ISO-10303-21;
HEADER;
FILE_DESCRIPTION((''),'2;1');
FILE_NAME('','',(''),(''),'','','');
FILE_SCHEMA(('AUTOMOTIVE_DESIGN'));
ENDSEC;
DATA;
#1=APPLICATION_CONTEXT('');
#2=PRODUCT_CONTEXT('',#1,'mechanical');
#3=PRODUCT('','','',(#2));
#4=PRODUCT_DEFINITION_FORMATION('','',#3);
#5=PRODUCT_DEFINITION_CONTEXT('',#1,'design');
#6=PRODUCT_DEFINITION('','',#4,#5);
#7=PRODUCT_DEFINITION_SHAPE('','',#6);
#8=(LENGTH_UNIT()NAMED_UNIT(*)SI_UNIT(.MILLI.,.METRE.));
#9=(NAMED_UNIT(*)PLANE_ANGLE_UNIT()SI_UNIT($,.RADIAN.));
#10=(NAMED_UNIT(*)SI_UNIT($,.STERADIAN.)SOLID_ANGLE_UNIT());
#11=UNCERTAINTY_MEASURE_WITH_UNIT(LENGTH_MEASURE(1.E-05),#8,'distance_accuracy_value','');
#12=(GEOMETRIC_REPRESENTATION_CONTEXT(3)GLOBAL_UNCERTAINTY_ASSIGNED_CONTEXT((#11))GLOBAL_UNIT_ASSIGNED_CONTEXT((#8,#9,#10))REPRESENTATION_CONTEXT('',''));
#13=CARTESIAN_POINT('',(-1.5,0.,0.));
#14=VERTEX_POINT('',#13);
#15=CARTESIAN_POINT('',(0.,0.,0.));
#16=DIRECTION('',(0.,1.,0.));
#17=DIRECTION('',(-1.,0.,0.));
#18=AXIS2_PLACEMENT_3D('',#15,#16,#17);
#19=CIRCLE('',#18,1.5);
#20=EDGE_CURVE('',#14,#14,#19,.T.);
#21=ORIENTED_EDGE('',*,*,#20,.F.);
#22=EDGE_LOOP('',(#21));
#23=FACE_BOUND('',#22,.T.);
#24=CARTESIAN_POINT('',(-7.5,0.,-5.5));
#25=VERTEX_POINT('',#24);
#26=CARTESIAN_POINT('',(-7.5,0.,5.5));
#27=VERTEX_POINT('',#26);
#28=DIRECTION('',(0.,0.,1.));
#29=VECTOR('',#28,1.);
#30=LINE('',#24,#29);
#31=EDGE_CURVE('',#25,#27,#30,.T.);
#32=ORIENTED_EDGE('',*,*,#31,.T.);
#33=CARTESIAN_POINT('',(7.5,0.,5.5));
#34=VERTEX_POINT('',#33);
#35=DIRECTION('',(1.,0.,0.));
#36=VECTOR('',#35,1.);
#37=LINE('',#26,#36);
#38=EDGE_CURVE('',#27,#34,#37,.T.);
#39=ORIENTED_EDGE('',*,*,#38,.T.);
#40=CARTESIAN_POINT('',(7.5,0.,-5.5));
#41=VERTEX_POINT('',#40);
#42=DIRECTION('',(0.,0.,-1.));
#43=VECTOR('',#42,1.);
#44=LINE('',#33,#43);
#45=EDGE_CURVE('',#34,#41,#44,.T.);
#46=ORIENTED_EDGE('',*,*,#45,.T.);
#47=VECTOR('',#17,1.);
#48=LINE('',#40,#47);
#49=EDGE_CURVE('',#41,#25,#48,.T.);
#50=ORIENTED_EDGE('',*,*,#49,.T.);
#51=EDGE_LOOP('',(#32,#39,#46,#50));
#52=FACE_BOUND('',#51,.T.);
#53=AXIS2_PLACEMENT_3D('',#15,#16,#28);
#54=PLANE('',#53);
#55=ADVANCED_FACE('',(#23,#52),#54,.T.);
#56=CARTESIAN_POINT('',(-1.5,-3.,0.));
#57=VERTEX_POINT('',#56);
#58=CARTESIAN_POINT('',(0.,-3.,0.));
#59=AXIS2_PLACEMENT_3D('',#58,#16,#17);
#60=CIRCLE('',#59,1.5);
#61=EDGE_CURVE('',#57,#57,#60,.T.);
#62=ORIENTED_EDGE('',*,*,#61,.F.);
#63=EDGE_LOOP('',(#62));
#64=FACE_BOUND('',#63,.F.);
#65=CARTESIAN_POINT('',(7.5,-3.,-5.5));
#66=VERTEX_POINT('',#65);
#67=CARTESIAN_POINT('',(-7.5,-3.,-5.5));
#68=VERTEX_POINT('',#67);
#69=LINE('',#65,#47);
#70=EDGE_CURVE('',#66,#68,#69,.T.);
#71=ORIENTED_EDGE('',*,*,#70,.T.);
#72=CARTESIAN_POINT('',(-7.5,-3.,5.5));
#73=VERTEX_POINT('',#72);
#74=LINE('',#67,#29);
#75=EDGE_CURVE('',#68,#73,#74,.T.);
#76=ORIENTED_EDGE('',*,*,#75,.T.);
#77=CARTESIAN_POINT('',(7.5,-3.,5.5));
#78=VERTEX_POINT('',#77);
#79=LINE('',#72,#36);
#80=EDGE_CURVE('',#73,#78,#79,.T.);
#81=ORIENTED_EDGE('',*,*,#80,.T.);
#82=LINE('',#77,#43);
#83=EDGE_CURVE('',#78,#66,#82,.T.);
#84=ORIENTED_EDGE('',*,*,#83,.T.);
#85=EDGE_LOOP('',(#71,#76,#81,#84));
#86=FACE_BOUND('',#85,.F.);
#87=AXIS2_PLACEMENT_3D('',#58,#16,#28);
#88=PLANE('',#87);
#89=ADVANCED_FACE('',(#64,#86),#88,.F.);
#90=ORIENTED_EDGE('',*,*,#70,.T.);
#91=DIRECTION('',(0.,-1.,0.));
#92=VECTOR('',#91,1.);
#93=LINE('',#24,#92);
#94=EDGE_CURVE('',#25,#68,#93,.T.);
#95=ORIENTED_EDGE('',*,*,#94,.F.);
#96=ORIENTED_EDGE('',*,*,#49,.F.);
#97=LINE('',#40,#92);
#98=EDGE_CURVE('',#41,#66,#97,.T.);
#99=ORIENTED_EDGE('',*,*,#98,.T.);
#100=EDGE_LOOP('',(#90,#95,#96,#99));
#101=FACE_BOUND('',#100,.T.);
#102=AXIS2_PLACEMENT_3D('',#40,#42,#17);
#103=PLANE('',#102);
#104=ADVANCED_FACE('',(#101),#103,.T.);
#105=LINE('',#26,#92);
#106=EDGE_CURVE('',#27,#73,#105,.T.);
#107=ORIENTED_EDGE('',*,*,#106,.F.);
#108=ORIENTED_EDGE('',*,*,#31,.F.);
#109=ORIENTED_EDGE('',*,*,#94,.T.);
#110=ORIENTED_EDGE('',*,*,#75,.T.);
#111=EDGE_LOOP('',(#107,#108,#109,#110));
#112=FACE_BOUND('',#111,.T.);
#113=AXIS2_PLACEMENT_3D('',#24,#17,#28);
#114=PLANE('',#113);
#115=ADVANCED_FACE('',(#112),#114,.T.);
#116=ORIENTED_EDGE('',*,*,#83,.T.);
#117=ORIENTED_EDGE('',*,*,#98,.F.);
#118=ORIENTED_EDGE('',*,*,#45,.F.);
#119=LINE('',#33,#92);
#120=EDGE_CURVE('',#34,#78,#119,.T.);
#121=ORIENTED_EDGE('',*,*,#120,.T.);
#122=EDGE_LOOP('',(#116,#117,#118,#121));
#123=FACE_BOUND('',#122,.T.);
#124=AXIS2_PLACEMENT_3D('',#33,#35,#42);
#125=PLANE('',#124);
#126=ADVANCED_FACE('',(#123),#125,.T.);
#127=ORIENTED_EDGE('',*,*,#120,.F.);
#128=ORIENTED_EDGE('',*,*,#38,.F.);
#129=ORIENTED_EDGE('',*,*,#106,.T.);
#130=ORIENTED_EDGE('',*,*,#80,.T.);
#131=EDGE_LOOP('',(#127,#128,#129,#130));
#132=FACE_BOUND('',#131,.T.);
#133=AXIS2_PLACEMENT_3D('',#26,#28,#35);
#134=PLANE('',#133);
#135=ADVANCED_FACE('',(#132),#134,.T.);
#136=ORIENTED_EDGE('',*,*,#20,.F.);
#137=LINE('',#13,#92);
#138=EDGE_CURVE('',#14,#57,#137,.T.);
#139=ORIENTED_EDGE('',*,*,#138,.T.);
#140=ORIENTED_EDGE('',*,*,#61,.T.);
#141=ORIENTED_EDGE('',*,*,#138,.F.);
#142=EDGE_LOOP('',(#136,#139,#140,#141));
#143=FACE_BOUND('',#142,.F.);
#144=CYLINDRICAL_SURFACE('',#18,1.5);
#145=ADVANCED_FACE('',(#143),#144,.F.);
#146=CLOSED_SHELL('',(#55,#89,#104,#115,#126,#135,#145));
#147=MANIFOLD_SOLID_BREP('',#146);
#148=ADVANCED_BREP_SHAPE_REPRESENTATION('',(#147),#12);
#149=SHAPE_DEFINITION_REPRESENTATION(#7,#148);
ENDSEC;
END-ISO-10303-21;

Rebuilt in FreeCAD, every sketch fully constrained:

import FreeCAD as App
import Part
import Sketcher
from FreeCAD import Vector

doc = App.newDocument("Part")
params = doc.addObject("Spreadsheet::Sheet", "Params")
for row, (alias, value) in enumerate([
    ("sketch1_diameter", "3 mm"),
    ("sketch1_width", "15 mm"),
    ("sketch1_height", "11 mm"),
    ("pad1_length", "3 mm"),
], start=1):
    params.set(f"A{row}", alias)
    params.set(f"B{row}", "=" + value)
    params.setAlias(f"B{row}", alias)

body = doc.addObject("PartDesign::Body", "Body")

# Sketch on XZ plane
sketch1 = body.newObject("Sketcher::SketchObject", "Sketch")
sketch1.AttachmentSupport = (doc.getObject("XZ_Plane"), [""])
sketch1.MapMode = "FlatFace"
sketch1.addGeometry(Part.LineSegment(Vector(-7.5, 5.5, 0), Vector(7.5, 5.5, 0)), False)
sketch1.addGeometry(Part.LineSegment(Vector(7.5, 5.5, 0), Vector(7.5, -5.5, 0)), False)
sketch1.addGeometry(Part.LineSegment(Vector(7.5, -5.5, 0), Vector(-7.5, -5.5, 0)), False)
sketch1.addGeometry(Part.LineSegment(Vector(-7.5, -5.5, 0), Vector(-7.5, 5.5, 0)), False)
sketch1.addGeometry(Part.Circle(Vector(0, 0, 0), Vector(0, 0, 1), 1.5), False)
sketch1.addConstraint(Sketcher.Constraint("Coincident", 0, 2, 1, 1))
sketch1.addConstraint(Sketcher.Constraint("Coincident", 1, 2, 2, 1))
sketch1.addConstraint(Sketcher.Constraint("Coincident", 2, 2, 3, 1))
sketch1.addConstraint(Sketcher.Constraint("Coincident", 3, 2, 0, 1))
sketch1.addConstraint(Sketcher.Constraint("Horizontal", 0))
sketch1.addConstraint(Sketcher.Constraint("Vertical", 1))
sketch1.addConstraint(Sketcher.Constraint("Horizontal", 2))
sketch1.addConstraint(Sketcher.Constraint("Vertical", 3))
sketch1.addConstraint(Sketcher.Constraint("Coincident", 4, 3, -1, 1))
sketch1.addConstraint(Sketcher.Constraint("Symmetric", 0, 2, 2, 2, -1, 1))
sketch1.addConstraint(Sketcher.Constraint("Diameter", 4, 3.0))
sketch1.addConstraint(Sketcher.Constraint("DistanceX", 0, 1, 0, 2, 15.0))
sketch1.addConstraint(Sketcher.Constraint("DistanceY", 1, 2, 1, 1, 11.0))
sketch1.setExpression("Constraints[10]", "Params.sketch1_diameter")
sketch1.setExpression("Constraints[11]", "Params.sketch1_width")
sketch1.setExpression("Constraints[12]", "Params.sketch1_height")
pad1 = body.newObject("PartDesign::Pad", "Pad")
pad1.Profile = sketch1
pad1.setExpression("Length", "Params.pad1_length")

doc.recompute()
